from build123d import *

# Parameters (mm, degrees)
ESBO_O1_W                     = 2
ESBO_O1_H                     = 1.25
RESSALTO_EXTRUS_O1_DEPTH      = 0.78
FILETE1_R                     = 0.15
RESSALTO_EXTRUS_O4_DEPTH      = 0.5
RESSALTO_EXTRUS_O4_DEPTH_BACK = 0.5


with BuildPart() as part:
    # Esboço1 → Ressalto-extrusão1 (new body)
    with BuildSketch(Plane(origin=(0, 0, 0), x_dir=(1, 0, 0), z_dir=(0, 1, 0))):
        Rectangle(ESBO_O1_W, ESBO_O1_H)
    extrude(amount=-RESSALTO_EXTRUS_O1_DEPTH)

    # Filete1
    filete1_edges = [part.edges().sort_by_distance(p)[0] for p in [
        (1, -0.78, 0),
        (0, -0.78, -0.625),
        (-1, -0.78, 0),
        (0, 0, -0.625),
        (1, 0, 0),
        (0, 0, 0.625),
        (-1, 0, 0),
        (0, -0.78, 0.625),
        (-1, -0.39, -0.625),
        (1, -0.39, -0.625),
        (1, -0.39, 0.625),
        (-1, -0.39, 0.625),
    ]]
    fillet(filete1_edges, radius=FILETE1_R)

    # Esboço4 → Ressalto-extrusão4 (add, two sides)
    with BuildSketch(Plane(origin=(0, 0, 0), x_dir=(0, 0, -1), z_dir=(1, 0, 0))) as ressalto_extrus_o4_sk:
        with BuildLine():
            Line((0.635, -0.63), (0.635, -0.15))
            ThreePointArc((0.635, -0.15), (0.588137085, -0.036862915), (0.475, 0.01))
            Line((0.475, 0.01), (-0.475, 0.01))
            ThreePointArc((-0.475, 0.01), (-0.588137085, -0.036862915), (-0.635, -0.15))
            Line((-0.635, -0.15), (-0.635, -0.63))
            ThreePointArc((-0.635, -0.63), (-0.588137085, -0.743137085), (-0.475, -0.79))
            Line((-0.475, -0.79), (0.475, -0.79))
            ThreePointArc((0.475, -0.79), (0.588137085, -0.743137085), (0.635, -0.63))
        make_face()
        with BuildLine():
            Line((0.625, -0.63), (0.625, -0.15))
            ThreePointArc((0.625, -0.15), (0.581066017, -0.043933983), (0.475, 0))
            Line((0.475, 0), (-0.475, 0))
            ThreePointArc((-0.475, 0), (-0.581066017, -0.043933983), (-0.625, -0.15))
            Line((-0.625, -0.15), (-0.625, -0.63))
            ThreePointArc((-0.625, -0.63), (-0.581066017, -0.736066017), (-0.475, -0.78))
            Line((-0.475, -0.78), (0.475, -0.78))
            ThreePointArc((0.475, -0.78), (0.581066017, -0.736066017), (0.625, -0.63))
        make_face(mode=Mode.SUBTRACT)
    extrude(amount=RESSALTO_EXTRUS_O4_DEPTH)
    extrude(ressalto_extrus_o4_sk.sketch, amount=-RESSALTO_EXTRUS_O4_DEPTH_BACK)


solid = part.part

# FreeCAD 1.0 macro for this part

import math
import FreeCAD as App
import Part
import Sketcher
Q = App.Units.Quantity

doc = App.newDocument("Part")
params = doc.addObject("Spreadsheet::Sheet", "Params")
for row, (alias, value) in enumerate([
    ("sketch1_width", "2 mm"),
    ("sketch1_height", "1.25 mm"),
    ("pad1_length", "0.78 mm"),
    ("fillet_radius", "0.15 mm"),
    ("sketch2_radius", "0.16 mm"),
    ("sketch2_radius2", "0.15 mm"),
    ("sketch2_width", "0.48 mm"),
    ("sketch2_height", "0.95 mm"),
    ("pad2_length", "0.5 mm"),
    ("pad2_length2", "0.5 mm"),
], start=1):
    params.set(f"A{row}", alias)
    params.set(f"B{row}", "=" + value)
    params.setAlias(f"B{row}", alias)

body = doc.addObject("PartDesign::Body", "Body")

sketch1 = doc.addObject("Sketcher::SketchObject", "Sketch")
body.addObject(sketch1)
sketch1.AttachmentSupport = (doc.XZ_Plane, [""])
sketch1.MapMode = "FlatFace"
sketch1.addGeometry([
    Part.LineSegment(App.Vector(-1, -0.625, 0), App.Vector(-1, 0.625, 0)),
    Part.LineSegment(App.Vector(-1, 0.625, 0), App.Vector(1, 0.625, 0)),
    Part.LineSegment(App.Vector(1, 0.625, 0), App.Vector(1, -0.625, 0)),
    Part.LineSegment(App.Vector(1, -0.625, 0), App.Vector(-1, -0.625, 0)),
], False)
sketch1.addConstraint([
    Sketcher.Constraint("Coincident", 0, 2, 1, 1),
    Sketcher.Constraint("Coincident", 1, 2, 2, 1),
    Sketcher.Constraint("Coincident", 2, 2, 3, 1),
    Sketcher.Constraint("Coincident", 3, 2, 0, 1),
    Sketcher.Constraint("Vertical", 0),
    Sketcher.Constraint("Horizontal", 1),
    Sketcher.Constraint("Vertical", 2),
    Sketcher.Constraint("Horizontal", 3),
    Sketcher.Constraint("Symmetric", 0, 2, 2, 2, -1, 1),
    Sketcher.Constraint("DistanceX", 1, 1, 1, 2, Q("2 mm")),
    Sketcher.Constraint("DistanceY", 0, 1, 0, 2, Q("1.25 mm")),
])
sketch1.setExpression("Constraints[9]", "Params.sketch1_width")
sketch1.setExpression("Constraints[10]", "Params.sketch1_height")
pad1 = doc.addObject("PartDesign::Pad", "Pad")
body.addObject(pad1)
pad1.Profile = sketch1
pad1.setExpression("Length", "Params.pad1_length")
doc.recompute()

fillet = doc.addObject("PartDesign::Fillet", "Fillet")
body.addObject(fillet)
fillet.Base = (pad1, ["Edge1"])
fillet.UseAllEdges = True
fillet.setExpression("Radius", "Params.fillet_radius")

sketch2 = doc.addObject("Sketcher::SketchObject", "Sketch001")
body.addObject(sketch2)
sketch2.AttachmentSupport = (doc.YZ_Plane, [""])
sketch2.MapMode = "FlatFace"
sketch2.addGeometry([
    Part.LineSegment(App.Vector(-0.63, -0.635, 0), App.Vector(-0.15, -0.635, 0)),
    Part.ArcOfCircle(Part.Circle(App.Vector(-0.15, -0.475, 0), App.Vector(0, 0, 1), 0.16), math.radians(-90), math.radians(0)),
    Part.LineSegment(App.Vector(0.01, -0.475, 0), App.Vector(0.01, 0.475, 0)),
    Part.ArcOfCircle(Part.Circle(App.Vector(-0.15, 0.475, 0), App.Vector(0, 0, 1), 0.16), math.radians(0), math.radians(90)),
    Part.LineSegment(App.Vector(-0.15, 0.635, 0), App.Vector(-0.63, 0.635, 0)),
    Part.ArcOfCircle(Part.Circle(App.Vector(-0.63, 0.475, 0), App.Vector(0, 0, 1), 0.16), math.radians(90), math.radians(180)),
    Part.LineSegment(App.Vector(-0.79, 0.475, 0), App.Vector(-0.79, -0.475, 0)),
    Part.ArcOfCircle(Part.Circle(App.Vector(-0.63, -0.475, 0), App.Vector(0, 0, 1), 0.16), math.radians(180), math.radians(270)),
    Part.LineSegment(App.Vector(-0.15, -0.625, 0), App.Vector(-0.63, -0.625, 0)),
    Part.ArcOfCircle(Part.Circle(App.Vector(-0.63, -0.475, 0), App.Vector(0, 0, 1), 0.15), math.radians(-180), math.radians(-90)),
    Part.LineSegment(App.Vector(-0.78, -0.475, 0), App.Vector(-0.78, 0.475, 0)),
    Part.ArcOfCircle(Part.Circle(App.Vector(-0.63, 0.475, 0), App.Vector(0, 0, 1), 0.15), math.radians(90), math.radians(180)),
    Part.LineSegment(App.Vector(-0.63, 0.625, 0), App.Vector(-0.15, 0.625, 0)),
    Part.ArcOfCircle(Part.Circle(App.Vector(-0.15, 0.475, 0), App.Vector(0, 0, 1), 0.15), math.radians(0), math.radians(90)),
    Part.LineSegment(App.Vector(0, 0.475, 0), App.Vector(0, -0.475, 0)),
    Part.ArcOfCircle(Part.Circle(App.Vector(-0.15, -0.475, 0), App.Vector(0, 0, 1), 0.15), math.radians(-90), math.radians(0)),
], False)
sketch2.addConstraint([
    Sketcher.Constraint("Tangent", 0, 2, 1, 1),
    Sketcher.Constraint("Tangent", 1, 2, 2, 1),
    Sketcher.Constraint("Tangent", 2, 2, 3, 1),
    Sketcher.Constraint("Tangent", 3, 2, 4, 1),
    Sketcher.Constraint("Tangent", 4, 2, 5, 1),
    Sketcher.Constraint("Tangent", 5, 2, 6, 1),
    Sketcher.Constraint("Tangent", 6, 2, 7, 1),
    Sketcher.Constraint("Tangent", 7, 2, 0, 1),
    Sketcher.Constraint("Tangent", 8, 2, 9, 2),
    Sketcher.Constraint("Tangent", 9, 1, 10, 1),
    Sketcher.Constraint("Tangent", 10, 2, 11, 2),
    Sketcher.Constraint("Tangent", 11, 1, 12, 1),
    Sketcher.Constraint("Tangent", 12, 2, 13, 2),
    Sketcher.Constraint("Tangent", 13, 1, 14, 1),
    Sketcher.Constraint("Tangent", 14, 2, 15, 2),
    Sketcher.Constraint("Tangent", 15, 1, 8, 1),
    Sketcher.Constraint("Horizontal", 0),
    Sketcher.Constraint("Vertical", 2),
    Sketcher.Constraint("Horizontal", 4),
    Sketcher.Constraint("Vertical", 6),
    Sketcher.Constraint("Horizontal", 8),
    Sketcher.Constraint("Vertical", 10),
    Sketcher.Constraint("Horizontal", 12),
    Sketcher.Constraint("Vertical", 14),
    Sketcher.Constraint("Coincident", 9, 3, 7, 3),
    Sketcher.Constraint("Coincident", 11, 3, 5, 3),
    Sketcher.Constraint("Coincident", 13, 3, 3, 3),
    Sketcher.Constraint("Equal", 1, 3),
    Sketcher.Constraint("Equal", 3, 5),
    Sketcher.Constraint("Equal", 5, 7),
    Sketcher.Constraint("Equal", 13, 15),
    Sketcher.Constraint("Symmetric", 13, 1, 14, 2, -1, 1),
    Sketcher.Constraint("Radius", 1, Q("0.16 mm")),
    Sketcher.Constraint("Radius", 9, Q("0.15 mm")),
    Sketcher.Constraint("DistanceX", 0, 1, 0, 2, Q("0.48 mm")),
    Sketcher.Constraint("DistanceY", 2, 1, 2, 2, Q("0.95 mm")),
])
sketch2.setExpression("Constraints[32]", "Params.sketch2_radius")
sketch2.setExpression("Constraints[33]", "Params.sketch2_radius2")
sketch2.setExpression("Constraints[34]", "Params.sketch2_width")
sketch2.setExpression("Constraints[35]", "Params.sketch2_height")
pad2 = doc.addObject("PartDesign::Pad", "Pad001")
body.addObject(pad2)
pad2.Profile = sketch2
pad2.Type = "TwoLengths"
pad2.setExpression("Length", "Params.pad2_length")
pad2.setExpression("Length2", "Params.pad2_length2")

doc.recompute()
